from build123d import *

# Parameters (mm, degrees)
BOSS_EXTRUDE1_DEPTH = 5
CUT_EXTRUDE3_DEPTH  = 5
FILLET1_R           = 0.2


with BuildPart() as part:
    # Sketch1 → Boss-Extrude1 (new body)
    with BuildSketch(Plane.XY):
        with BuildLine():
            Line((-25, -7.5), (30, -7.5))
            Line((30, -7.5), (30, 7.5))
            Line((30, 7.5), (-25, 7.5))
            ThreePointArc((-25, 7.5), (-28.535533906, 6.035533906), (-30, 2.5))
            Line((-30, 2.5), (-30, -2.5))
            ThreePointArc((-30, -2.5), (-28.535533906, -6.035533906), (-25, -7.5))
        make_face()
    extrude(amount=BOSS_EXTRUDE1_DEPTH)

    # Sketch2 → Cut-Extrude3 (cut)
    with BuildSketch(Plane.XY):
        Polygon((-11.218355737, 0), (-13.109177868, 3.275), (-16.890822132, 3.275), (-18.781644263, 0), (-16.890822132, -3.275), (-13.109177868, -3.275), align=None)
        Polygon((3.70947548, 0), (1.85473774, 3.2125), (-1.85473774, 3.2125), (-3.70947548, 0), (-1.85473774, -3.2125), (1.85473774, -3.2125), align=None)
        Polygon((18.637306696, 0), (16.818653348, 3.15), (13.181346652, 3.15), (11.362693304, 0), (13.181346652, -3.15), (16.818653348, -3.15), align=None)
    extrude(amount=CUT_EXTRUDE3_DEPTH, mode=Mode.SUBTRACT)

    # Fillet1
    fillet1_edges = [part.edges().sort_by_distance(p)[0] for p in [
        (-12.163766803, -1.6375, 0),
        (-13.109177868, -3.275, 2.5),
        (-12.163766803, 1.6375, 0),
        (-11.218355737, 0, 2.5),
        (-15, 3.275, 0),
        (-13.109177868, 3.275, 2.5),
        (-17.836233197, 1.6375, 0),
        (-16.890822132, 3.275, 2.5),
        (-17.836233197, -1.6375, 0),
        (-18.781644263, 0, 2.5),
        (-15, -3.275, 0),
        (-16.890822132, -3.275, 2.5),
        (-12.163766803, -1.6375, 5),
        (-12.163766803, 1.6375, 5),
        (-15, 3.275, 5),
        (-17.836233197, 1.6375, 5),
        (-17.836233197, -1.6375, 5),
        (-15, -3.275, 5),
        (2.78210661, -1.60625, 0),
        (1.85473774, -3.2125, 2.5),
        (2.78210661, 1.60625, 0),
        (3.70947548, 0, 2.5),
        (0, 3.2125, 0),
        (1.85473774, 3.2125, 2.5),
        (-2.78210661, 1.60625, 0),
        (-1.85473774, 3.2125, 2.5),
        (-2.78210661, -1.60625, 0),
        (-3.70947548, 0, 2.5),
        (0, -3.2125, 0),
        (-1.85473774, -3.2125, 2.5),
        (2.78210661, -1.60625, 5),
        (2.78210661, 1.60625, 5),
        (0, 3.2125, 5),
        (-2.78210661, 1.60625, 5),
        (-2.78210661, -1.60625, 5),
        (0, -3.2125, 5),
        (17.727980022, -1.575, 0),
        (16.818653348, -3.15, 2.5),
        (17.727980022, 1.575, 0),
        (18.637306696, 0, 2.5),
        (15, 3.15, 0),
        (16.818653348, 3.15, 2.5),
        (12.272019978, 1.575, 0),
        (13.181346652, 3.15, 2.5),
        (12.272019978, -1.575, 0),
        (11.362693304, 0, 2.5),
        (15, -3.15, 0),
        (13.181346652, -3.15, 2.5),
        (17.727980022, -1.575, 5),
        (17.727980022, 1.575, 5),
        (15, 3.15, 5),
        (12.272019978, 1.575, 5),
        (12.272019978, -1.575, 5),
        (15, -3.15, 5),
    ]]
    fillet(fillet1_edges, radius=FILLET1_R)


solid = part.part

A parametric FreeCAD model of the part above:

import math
import FreeCAD as App
import Part
import Sketcher

V = App.Vector
Q = App.Units.Quantity


def edges_at(feature, points):
    """Names of the edges that pass closest to the given points."""
    edges = feature.Shape.Edges
    near = lambda p: min(range(len(edges)), key=lambda i: edges[i].distToShape(Part.Vertex(*p))[0])
    return sorted({f"Edge{near(p) + 1}" for p in points})


def add_polygon(sketch, points):
    """Adds a closed chain of lines whose ends are joined by coincident constraints."""
    first, n = sketch.GeometryCount, len(points)
    for a, b in zip(points, points[1:] + points[:1]):
        sketch.addGeometry(Part.LineSegment(App.Vector(*a, 0), App.Vector(*b, 0)), False)
    for i in range(n):
        sketch.addConstraint(Sketcher.Constraint("Coincident", first + i, 2, first + (i + 1) % n, 1))

doc = App.newDocument("Part")
body = doc.addObject("PartDesign::Body", "Body")

sketch1 = body.newObject("Sketcher::SketchObject", "Sketch")
sketch1.AttachmentSupport = (doc.getObject("XY_Plane"), [""])
sketch1.MapMode = "FlatFace"
sketch1.addGeometry([
    Part.LineSegment(V(-25, -8, 0), V(30, -8, 0)),
    Part.LineSegment(V(30, -8, 0), V(30, 8, 0)),
    Part.LineSegment(V(30, 8, 0), V(-25, 8, 0)),
    Part.ArcOfCircle(Part.Circle(V(-25, 2, 0), V(0, 0, 1), 5), math.radians(90), math.radians(180)),
    Part.LineSegment(V(-30, 2, 0), V(-30, -2, 0)),
    Part.ArcOfCircle(Part.Circle(V(-25, -2, 0), V(0, 0, 1), 5), math.radians(180), math.radians(270)),
], False)
sketch1.addConstraint([
    Sketcher.Constraint("Coincident", 0, 2, 1, 1),
    Sketcher.Constraint("Coincident", 1, 2, 2, 1),
    Sketcher.Constraint("Tangent", 2, 2, 3, 1),
    Sketcher.Constraint("Tangent", 3, 2, 4, 1),
    Sketcher.Constraint("Tangent", 4, 2, 5, 1),
    Sketcher.Constraint("Tangent", 5, 2, 0, 1),
    Sketcher.Constraint("Horizontal", 0),
    Sketcher.Constraint("Vertical", 1),
    Sketcher.Constraint("Horizontal", 2),
    Sketcher.Constraint("Vertical", 4),
    Sketcher.Constraint("Equal", 3, 5),
    Sketcher.Constraint("Radius", 3, Q("5 mm")),
    Sketcher.Constraint("DistanceX", 0, 1, 0, 2, Q("55 mm")),
    Sketcher.Constraint("DistanceY", 1, 1, 1, 2, Q("15 mm")),
    Sketcher.Constraint("DistanceX", 3, 3, -1, 1, Q("25 mm")),
    Sketcher.Constraint("DistanceY", -1, 1, 3, 3, Q("2.5 mm")),
])
pad1 = body.newObject("PartDesign::Pad", "Pad")
pad1.Profile = sketch1
pad1.Length = 5

sketch2 = body.newObject("Sketcher::SketchObject", "Sketch001")
sketch2.AttachmentSupport = (doc.getObject("XY_Plane"), [""])
sketch2.MapMode = "FlatFace"
add_polygon(sketch2, [(-11.2, 0), (-13.1, 3.3), (-16.9, 3.3), (-18.8, 0), (-16.9, -3.3), (-13.1, -3.3)])
add_polygon(sketch2, [(3.7, 0), (1.9, 3.2), (-1.9, 3.2), (-3.7, 0), (-1.9, -3.2), (1.9, -3.2)])
add_polygon(sketch2, [(18.6, 0), (16.8, 3.1), (13.2, 3.1), (11.4, 0), (13.2, -3.1), (16.8, -3.1)])
sketch2.addConstraint([
    Sketcher.Constraint("Horizontal", 1),
    Sketcher.Constraint("Horizontal", 4),
    Sketcher.Constraint("Horizontal", 7),
    Sketcher.Constraint("Horizontal", 10),
    Sketcher.Constraint("Horizontal", 13),
    Sketcher.Constraint("Horizontal", 16),
    Sketcher.Constraint("Symmetric", 6, 2, 9, 2, -1, 1),
    Sketcher.Constraint("Symmetric", 8, 2, 11, 2, -1, 1),
    Sketcher.Constraint("Symmetric", 1, 2, 3, 2, -1),
    Sketcher.Constraint("Symmetric", 13, 2, 15, 2, -1),
    Sketcher.Constraint("PointOnObject", 2, 2, -1),
    Sketcher.Constraint("PointOnObject", 5, 2, -1),
    Sketcher.Constraint("PointOnObject", 8, 2, -1),
    Sketcher.Constraint("PointOnObject", 14, 2, -1),
    Sketcher.Constraint("PointOnObject", 17, 2, -1),
    Sketcher.Constraint("Parallel", 0, 3),
    Sketcher.Constraint("Parallel", 2, 5),
    Sketcher.Constraint("Parallel", 3, 6),
    Sketcher.Constraint("Parallel", 5, 8),
    Sketcher.Constraint("Parallel", 8, 11),
    Sketcher.Constraint("Parallel", 9, 12),
    Sketcher.Constraint("Parallel", 11, 14),
    Sketcher.Constraint("Parallel", 14, 17),
    Sketcher.Constraint("Angle", 0, Q("120 deg")),
    Sketcher.Constraint("DistanceY", 15, 2, 13, 2, Q("6.3 mm")),
    Sketcher.Constraint("DistanceY", 3, 2, 1, 2, Q("6.55 mm")),
    Sketcher.Constraint("DistanceY", 9, 2, 7, 2, Q("6.425 mm")),
    Sketcher.Constraint("DistanceX", 1, 2, 1, 1, Q("3.781644 mm")),
    Sketcher.Constraint("DistanceX", 7, 2, 7, 1, Q("3.709475 mm")),
    Sketcher.Constraint("DistanceX", 13, 2, 13, 1, Q("3.637307 mm")),
    Sketcher.Constraint("DistanceX", 1, 2, 6, 2, Q("18.74556 mm")),
    Sketcher.Constraint("DistanceX", 7, 2, 12, 2, Q("18.673391 mm")),
])
pocket1 = body.newObject("PartDesign::Pocket", "Pocket")
pocket1.Profile = sketch2
pocket1.Length = 5
pocket1.Reversed = True
doc.recompute()

fillet = body.newObject("PartDesign::Fillet", "Fillet")
fillet.Base = (pocket1, edges_at(pocket1, [
    (-12.164, -1.637, 0),
    (-13.109, -3.275, 2.5),
    (-12.164, 1.637, 0),
    (-11.218, 0, 2.5),
    (-15, 3.275, 0),
    (-13.109, 3.275, 2.5),
    (-17.836, 1.637, 0),
    (-16.891, 3.275, 2.5),
    (-17.836, -1.637, 0),
    (-18.782, 0, 2.5),
    (-15, -3.275, 0),
    (-16.891, -3.275, 2.5),
    (-12.164, -1.637, 5),
    (-12.164, 1.637, 5),
    (-15, 3.275, 5),
    (-17.836, 1.637, 5),
    (-17.836, -1.637, 5),
    (-15, -3.275, 5),
    (2.782, -1.606, 0),
    (1.855, -3.212, 2.5),
    (2.782, 1.606, 0),
    (3.709, 0, 2.5),
    (0, 3.212, 0),
    (1.855, 3.212, 2.5),
    (-2.782, 1.606, 0),
    (-1.855, 3.212, 2.5),
    (-2.782, -1.606, 0),
    (-3.709, 0, 2.5),
    (0, -3.212, 0),
    (-1.855, -3.212, 2.5),
    (2.782, -1.606, 5),
    (2.782, 1.606, 5),
    (0, 3.212, 5),
    (-2.782, 1.606, 5),
    (-2.782, -1.606, 5),
    (0, -3.212, 5),
    (17.728, -1.575, 0),
    (16.819, -3.15, 2.5),
    (17.728, 1.575, 0),
    (18.637, 0, 2.5),
    (15, 3.15, 0),
    (16.819, 3.15, 2.5),
    (12.272, 1.575, 0),
    (13.181, 3.15, 2.5),
    (12.272, -1.575, 0),
    (11.363, 0, 2.5),
    (15, -3.15, 0),
    (13.181, -3.15, 2.5),
    (17.728, -1.575, 5),
    (17.728, 1.575, 5),
    (15, 3.15, 5),
    (12.272, 1.575, 5),
    (12.272, -1.575, 5),
    (15, -3.15, 5),
]))
fillet.Radius = 0.2

doc.recompute()
